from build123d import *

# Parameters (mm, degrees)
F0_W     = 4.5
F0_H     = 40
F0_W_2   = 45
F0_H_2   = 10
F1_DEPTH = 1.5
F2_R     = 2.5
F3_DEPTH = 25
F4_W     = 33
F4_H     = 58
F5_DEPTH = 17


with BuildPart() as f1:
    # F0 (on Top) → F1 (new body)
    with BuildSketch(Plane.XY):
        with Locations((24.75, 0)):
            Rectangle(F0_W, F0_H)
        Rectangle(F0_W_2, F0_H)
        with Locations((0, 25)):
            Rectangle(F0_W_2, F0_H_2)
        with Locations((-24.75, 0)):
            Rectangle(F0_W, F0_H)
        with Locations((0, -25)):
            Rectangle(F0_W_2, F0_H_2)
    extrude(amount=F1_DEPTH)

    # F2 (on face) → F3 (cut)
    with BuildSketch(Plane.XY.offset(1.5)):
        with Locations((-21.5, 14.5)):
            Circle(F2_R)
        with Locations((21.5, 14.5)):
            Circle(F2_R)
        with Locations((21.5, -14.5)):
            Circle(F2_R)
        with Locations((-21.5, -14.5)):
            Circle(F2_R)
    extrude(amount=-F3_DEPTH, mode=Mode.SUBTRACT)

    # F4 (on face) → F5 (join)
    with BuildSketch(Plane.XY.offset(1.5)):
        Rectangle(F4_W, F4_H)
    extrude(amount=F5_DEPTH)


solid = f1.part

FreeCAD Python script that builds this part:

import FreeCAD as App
import Part
import Sketcher

V = App.Vector
Q = App.Units.Quantity

doc = App.newDocument("Part")
body = doc.addObject("PartDesign::Body", "Body")

sketch1 = body.newObject("Sketcher::SketchObject", "Sketch")
sketch1.AttachmentSupport = (doc.getObject("XY_Plane"), [""])
sketch1.MapMode = "FlatFace"
sketch1.addGeometry([
    Part.LineSegment(V(27, -20, 0), V(27, 20, 0)),
    Part.LineSegment(V(27, 20, 0), V(22.5, 20, 0)),
    Part.LineSegment(V(22.5, 20, 0), V(22.5, 30, 0)),
    Part.LineSegment(V(22.5, 30, 0), V(-22.5, 30, 0)),
    Part.LineSegment(V(-22.5, 30, 0), V(-22.5, 20, 0)),
    Part.LineSegment(V(-22.5, 20, 0), V(-27, 20, 0)),
    Part.LineSegment(V(-27, 20, 0), V(-27, -20, 0)),
    Part.LineSegment(V(-27, -20, 0), V(-22.5, -20, 0)),
    Part.LineSegment(V(-22.5, -20, 0), V(-22.5, -30, 0)),
    Part.LineSegment(V(-22.5, -30, 0), V(22.5, -30, 0)),
    Part.LineSegment(V(22.5, -30, 0), V(22.5, -20, 0)),
    Part.LineSegment(V(22.5, -20, 0), V(27, -20, 0)),
], False)
sketch1.addConstraint([
    Sketcher.Constraint("Coincident", 0, 2, 1, 1),
    Sketcher.Constraint("Coincident", 1, 2, 2, 1),
    Sketcher.Constraint("Coincident", 2, 2, 3, 1),
    Sketcher.Constraint("Coincident", 3, 2, 4, 1),
    Sketcher.Constraint("Coincident", 4, 2, 5, 1),
    Sketcher.Constraint("Coincident", 5, 2, 6, 1),
    Sketcher.Constraint("Coincident", 6, 2, 7, 1),
    Sketcher.Constraint("Coincident", 7, 2, 8, 1),
    Sketcher.Constraint("Coincident", 8, 2, 9, 1),
    Sketcher.Constraint("Coincident", 9, 2, 10, 1),
    Sketcher.Constraint("Coincident", 10, 2, 11, 1),
    Sketcher.Constraint("Coincident", 11, 2, 0, 1),
    Sketcher.Constraint("Vertical", 0),
    Sketcher.Constraint("Horizontal", 1),
    Sketcher.Constraint("Vertical", 2),
    Sketcher.Constraint("Horizontal", 3),
    Sketcher.Constraint("Vertical", 4),
    Sketcher.Constraint("Horizontal", 5),
    Sketcher.Constraint("Vertical", 6),
    Sketcher.Constraint("Horizontal", 7),
    Sketcher.Constraint("Vertical", 8),
    Sketcher.Constraint("Horizontal", 9),
    Sketcher.Constraint("Vertical", 10),
    Sketcher.Constraint("Horizontal", 11),
    Sketcher.Constraint("Symmetric", 0, 2, 6, 2, -1, 1),
    Sketcher.Constraint("Symmetric", 2, 2, 8, 2, -1, 1),
    Sketcher.Constraint("Symmetric", 4, 2, 10, 2, -1, 1),
    Sketcher.Constraint("Symmetric", 1, 2, 4, 2, -2),
    Sketcher.Constraint("DistanceX", 3, 2, 3, 1, Q("45 mm")),
    Sketcher.Constraint("DistanceY", 0, 1, 0, 2, Q("40 mm")),
    Sketcher.Constraint("DistanceY", 2, 1, 2, 2, Q("10 mm")),
    Sketcher.Constraint("DistanceX", 1, 2, 1, 1, Q("4.5 mm")),
])
pad1 = body.newObject("PartDesign::Pad", "Pad")
pad1.Profile = sketch1
pad1.Length = 1.5

sketch2 = body.newObject("Sketcher::SketchObject", "Sketch001")
sketch2.AttachmentSupport = (doc.getObject("XY_Plane"), [""])
sketch2.MapMode = "FlatFace"
sketch2.AttachmentOffset = App.Placement(V(0, 0, 1.5), App.Rotation())
sketch2.addGeometry([
    Part.Circle(V(-21.5, 14.5, 0), V(0, 0, 1), 2.5),
    Part.Circle(V(21.5, 14.5, 0), V(0, 0, 1), 2.5),
    Part.Circle(V(21.5, -14.5, 0), V(0, 0, 1), 2.5),
    Part.Circle(V(-21.5, -14.5, 0), V(0, 0, 1), 2.5),
], False)
sketch2.addConstraint([
    Sketcher.Constraint("Equal", 0, 1),
    Sketcher.Constraint("Equal", 1, 2),
    Sketcher.Constraint("Equal", 2, 3),
    Sketcher.Constraint("Symmetric", 0, 3, 2, 3, -1, 1),
    Sketcher.Constraint("Symmetric", 1, 3, 3, 3, -1, 1),
    Sketcher.Constraint("Symmetric", 0, 3, 1, 3, -2),
    Sketcher.Constraint("Diameter", 0, Q("5 mm")),
    Sketcher.Constraint("DistanceX", 0, 3, 1, 3, Q("43 mm")),
    Sketcher.Constraint("DistanceY", 2, 3, 1, 3, Q("29 mm")),
])
pocket1 = body.newObject("PartDesign::Pocket", "Pocket")
pocket1.Profile = sketch2
pocket1.Length = 25

sketch3 = body.newObject("Sketcher::SketchObject", "Sketch002")
sketch3.AttachmentSupport = (doc.getObject("XY_Plane"), [""])
sketch3.MapMode = "FlatFace"
sketch3.AttachmentOffset = App.Placement(V(0, 0, 1.5), App.Rotation())
sketch3.addGeometry([
    Part.LineSegment(V(-16, 29, 0), V(-16, -29, 0)),
    Part.LineSegment(V(-16, -29, 0), V(16, -29, 0)),
    Part.LineSegment(V(16, -29, 0), V(16, 29, 0)),
    Part.LineSegment(V(16, 29, 0), V(-16, 29, 0)),
], False)
sketch3.addConstraint([
    Sketcher.Constraint("Coincident", 0, 2, 1, 1),
    Sketcher.Constraint("Coincident", 1, 2, 2, 1),
    Sketcher.Constraint("Coincident", 2, 2, 3, 1),
    Sketcher.Constraint("Coincident", 3, 2, 0, 1),
    Sketcher.Constraint("Vertical", 0),
    Sketcher.Constraint("Horizontal", 1),
    Sketcher.Constraint("Vertical", 2),
    Sketcher.Constraint("Horizontal", 3),
    Sketcher.Constraint("Symmetric", 0, 2, 2, 2, -1, 1),
    Sketcher.Constraint("DistanceX", 1, 1, 1, 2, Q("33 mm")),
    Sketcher.Constraint("DistanceY", 0, 2, 0, 1, Q("58 mm")),
])
pad2 = body.newObject("PartDesign::Pad", "Pad001")
pad2.Profile = sketch3
pad2.Length = 17

doc.recompute()
